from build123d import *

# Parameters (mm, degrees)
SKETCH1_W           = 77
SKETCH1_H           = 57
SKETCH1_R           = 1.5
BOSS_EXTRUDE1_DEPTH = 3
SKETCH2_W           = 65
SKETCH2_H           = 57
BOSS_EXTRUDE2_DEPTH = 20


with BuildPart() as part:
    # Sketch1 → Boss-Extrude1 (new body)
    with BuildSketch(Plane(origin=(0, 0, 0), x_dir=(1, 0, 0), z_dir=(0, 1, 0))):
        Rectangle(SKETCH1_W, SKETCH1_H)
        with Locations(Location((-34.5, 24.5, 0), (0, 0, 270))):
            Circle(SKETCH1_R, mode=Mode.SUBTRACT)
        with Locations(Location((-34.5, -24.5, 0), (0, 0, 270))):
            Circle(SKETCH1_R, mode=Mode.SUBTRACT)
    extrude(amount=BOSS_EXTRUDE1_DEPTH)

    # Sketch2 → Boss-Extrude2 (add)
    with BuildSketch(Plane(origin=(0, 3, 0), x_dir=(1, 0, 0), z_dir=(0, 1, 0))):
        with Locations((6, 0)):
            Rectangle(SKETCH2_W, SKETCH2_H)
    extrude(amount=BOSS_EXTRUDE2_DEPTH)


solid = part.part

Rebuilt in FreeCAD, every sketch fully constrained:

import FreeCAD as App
import Part
import Sketcher

V = App.Vector
Q = App.Units.Quantity

doc = App.newDocument("Part")
body = doc.addObject("PartDesign::Body", "Body")

sketch1 = body.newObject("Sketcher::SketchObject", "Sketch")
sketch1.AttachmentSupport = (doc.getObject("XZ_Plane"), [""])
sketch1.MapMode = "FlatFace"
sketch1.addGeometry([
    Part.LineSegment(V(-38.5, -28.5, 0), V(-38.5, 28.5, 0)),
    Part.LineSegment(V(-38.5, 28.5, 0), V(38.5, 28.5, 0)),
    Part.LineSegment(V(38.5, 28.5, 0), V(38.5, -28.5, 0)),
    Part.LineSegment(V(38.5, -28.5, 0), V(-38.5, -28.5, 0)),
    Part.Circle(V(-34.5, 24.5, 0), V(0, 0, 1), 1.5),
    Part.Circle(V(-34.5, -24.5, 0), V(0, 0, 1), 1.5),
], False)
sketch1.addConstraint([
    Sketcher.Constraint("Coincident", 0, 2, 1, 1),
    Sketcher.Constraint("Coincident", 1, 2, 2, 1),
    Sketcher.Constraint("Coincident", 2, 2, 3, 1),
    Sketcher.Constraint("Coincident", 3, 2, 0, 1),
    Sketcher.Constraint("Vertical", 0),
    Sketcher.Constraint("Horizontal", 1),
    Sketcher.Constraint("Vertical", 2),
    Sketcher.Constraint("Horizontal", 3),
    Sketcher.Constraint("Equal", 4, 5),
    Sketcher.Constraint("Symmetric", 0, 2, 2, 2, -1, 1),
    Sketcher.Constraint("Symmetric", 4, 3, 5, 3, -1),
    Sketcher.Constraint("Diameter", 4, Q("3 mm")),
    Sketcher.Constraint("DistanceX", 1, 1, 1, 2, Q("77 mm")),
    Sketcher.Constraint("DistanceY", 0, 1, 0, 2, Q("57 mm")),
    Sketcher.Constraint("DistanceY", 5, 3, 4, 3, Q("49 mm")),
    Sketcher.Constraint("DistanceX", 0, 2, 4, 3, Q("4 mm")),
])
pad1 = body.newObject("PartDesign::Pad", "Pad")
pad1.Profile = sketch1
pad1.Length = 3
pad1.Reversed = True

sketch2 = body.newObject("Sketcher::SketchObject", "Sketch001")
sketch2.AttachmentSupport = (doc.getObject("XZ_Plane"), [""])
sketch2.MapMode = "FlatFace"
sketch2.AttachmentOffset = App.Placement(V(0, 0, -3), App.Rotation())
sketch2.addGeometry([
    Part.LineSegment(V(-26, -28, 0), V(-26, 28, 0)),
    Part.LineSegment(V(-26, 28, 0), V(38, 28, 0)),
    Part.LineSegment(V(38, 28, 0), V(38, -28, 0)),
    Part.LineSegment(V(38, -28, 0), V(-26, -28, 0)),
], False)
sketch2.addConstraint([
    Sketcher.Constraint("Coincident", 0, 2, 1, 1),
    Sketcher.Constraint("Coincident", 1, 2, 2, 1),
    Sketcher.Constraint("Coincident", 2, 2, 3, 1),
    Sketcher.Constraint("Coincident", 3, 2, 0, 1),
    Sketcher.Constraint("Vertical", 0),
    Sketcher.Constraint("Horizontal", 1),
    Sketcher.Constraint("Vertical", 2),
    Sketcher.Constraint("Horizontal", 3),
    Sketcher.Constraint("DistanceX", 1, 1, 1, 2, Q("65 mm")),
    Sketcher.Constraint("DistanceY", 0, 1, 0, 2, Q("57 mm")),
    Sketcher.Constraint("DistanceX", 0, 2, -1, 1, Q("26.5 mm")),
    Sketcher.Constraint("DistanceY", -1, 1, 0, 2, Q("28.5 mm")),
])
pad2 = body.newObject("PartDesign::Pad", "Pad001")
pad2.Profile = sketch2
pad2.Length = 20
pad2.Reversed = True

doc.recompute()
